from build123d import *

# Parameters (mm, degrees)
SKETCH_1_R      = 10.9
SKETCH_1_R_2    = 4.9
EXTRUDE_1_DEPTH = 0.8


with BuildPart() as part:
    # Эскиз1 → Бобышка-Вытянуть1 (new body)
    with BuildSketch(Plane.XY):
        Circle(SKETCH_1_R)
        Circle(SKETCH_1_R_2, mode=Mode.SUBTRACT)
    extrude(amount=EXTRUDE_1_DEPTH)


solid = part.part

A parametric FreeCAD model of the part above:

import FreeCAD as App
import Part
import Sketcher
Q = App.Units.Quantity

doc = App.newDocument("Part")
body = doc.addObject("PartDesign::Body", "Body")

# Sketch on XY plane
sketch1 = body.newObject("Sketcher::SketchObject", "Sketch")
sketch1.AttachmentSupport = (doc.getObject("XY_Plane"), [""])
sketch1.MapMode = "FlatFace"
sketch1.addGeometry([
    Part.Circle(App.Vector(0, 0, 0), App.Vector(0, 0, 1), 10.9),
    Part.Circle(App.Vector(0, 0, 0), App.Vector(0, 0, 1), 4.9),
], False)
sketch1.addConstraint([
    Sketcher.Constraint("Coincident", 0, 3, -1, 1),
    Sketcher.Constraint("Coincident", 1, 3, -1, 1),
    Sketcher.Constraint("Diameter", 0, Q("21.8 mm")),
    Sketcher.Constraint("Diameter", 1, Q("9.8 mm")),
])
pad1 = body.newObject("PartDesign::Pad", "Pad")
pad1.Profile = sketch1
pad1.Length = 0.8

doc.recompute()
